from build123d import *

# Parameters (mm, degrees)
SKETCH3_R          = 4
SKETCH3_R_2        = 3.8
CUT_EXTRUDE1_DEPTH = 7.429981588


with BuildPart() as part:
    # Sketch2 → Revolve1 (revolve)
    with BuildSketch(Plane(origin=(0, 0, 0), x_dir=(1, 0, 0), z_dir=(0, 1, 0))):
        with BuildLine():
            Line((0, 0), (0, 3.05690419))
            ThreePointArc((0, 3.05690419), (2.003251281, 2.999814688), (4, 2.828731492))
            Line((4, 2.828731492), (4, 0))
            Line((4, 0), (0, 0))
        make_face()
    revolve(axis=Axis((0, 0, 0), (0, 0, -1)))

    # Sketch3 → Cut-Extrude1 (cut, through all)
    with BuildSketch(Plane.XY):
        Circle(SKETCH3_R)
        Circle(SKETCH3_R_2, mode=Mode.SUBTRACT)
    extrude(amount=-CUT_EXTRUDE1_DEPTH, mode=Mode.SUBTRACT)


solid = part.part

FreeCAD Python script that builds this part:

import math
import FreeCAD as App
import Part
import Sketcher

V = App.Vector
Q = App.Units.Quantity

doc = App.newDocument("Part")
body = doc.addObject("PartDesign::Body", "Body")

# Sketch on XZ plane
sketch1 = body.newObject("Sketcher::SketchObject", "Sketch")
sketch1.AttachmentSupport = (doc.getObject("XZ_Plane"), [""])
sketch1.MapMode = "FlatFace"
sketch1.addGeometry([
    Part.LineSegment(V(0, -3.1, 0), V(0, 0, 0)),
    Part.LineSegment(V(0, 0, 0), V(4, 0, 0)),
    Part.LineSegment(V(4, 0, 0), V(4, -2.8, 0)),
    Part.ArcOfCircle(Part.Circle(V(0, 32.1, 0), V(0, 0, 1), 35.2), math.radians(-90), math.radians(-83.47)),
], False)
sketch1.addConstraint([
    Sketcher.Constraint("Coincident", 0, 2, 1, 1),
    Sketcher.Constraint("Coincident", 1, 2, 2, 1),
    Sketcher.Constraint("Coincident", 2, 2, 3, 2),
    Sketcher.Constraint("Coincident", 3, 1, 0, 1),
    Sketcher.Constraint("Vertical", 0),
    Sketcher.Constraint("Horizontal", 1),
    Sketcher.Constraint("Vertical", 2),
    Sketcher.Constraint("Coincident", 0, 2, -1, 1),
    Sketcher.Constraint("PointOnObject", 3, 3, -2),
    Sketcher.Constraint("DistanceX", 1, 1, 1, 2, Q("4 mm")),
    Sketcher.Constraint("Radius", 3, Q("35.175248 mm")),
    Sketcher.Constraint("DistanceY", 2, 2, 2, 1, Q("2.828731 mm")),
])
revolution = body.newObject("PartDesign::Revolution", "Revolution")
revolution.Profile = sketch1
revolution.ReferenceAxis = (sketch1, ["V_Axis"])
revolution.Angle = 360

# Sketch on XY plane
sketch2 = body.newObject("Sketcher::SketchObject", "Sketch001")
sketch2.AttachmentSupport = (doc.getObject("XY_Plane"), [""])
sketch2.MapMode = "FlatFace"
sketch2.addGeometry([
    Part.Circle(V(0, 0, 0), V(0, 0, 1), 4),
    Part.Circle(V(0, 0, 0), V(0, 0, 1), 3.8),
], False)
sketch2.addConstraint([
    Sketcher.Constraint("Coincident", 0, 3, -1, 1),
    Sketcher.Constraint("Coincident", 1, 3, -1, 1),
    Sketcher.Constraint("Diameter", 0, Q("8 mm")),
    Sketcher.Constraint("Diameter", 1, Q("7.6 mm")),
])
pocket1 = body.newObject("PartDesign::Pocket", "Pocket")
pocket1.Profile = sketch2
pocket1.Type = "ThroughAll"

doc.recompute()
